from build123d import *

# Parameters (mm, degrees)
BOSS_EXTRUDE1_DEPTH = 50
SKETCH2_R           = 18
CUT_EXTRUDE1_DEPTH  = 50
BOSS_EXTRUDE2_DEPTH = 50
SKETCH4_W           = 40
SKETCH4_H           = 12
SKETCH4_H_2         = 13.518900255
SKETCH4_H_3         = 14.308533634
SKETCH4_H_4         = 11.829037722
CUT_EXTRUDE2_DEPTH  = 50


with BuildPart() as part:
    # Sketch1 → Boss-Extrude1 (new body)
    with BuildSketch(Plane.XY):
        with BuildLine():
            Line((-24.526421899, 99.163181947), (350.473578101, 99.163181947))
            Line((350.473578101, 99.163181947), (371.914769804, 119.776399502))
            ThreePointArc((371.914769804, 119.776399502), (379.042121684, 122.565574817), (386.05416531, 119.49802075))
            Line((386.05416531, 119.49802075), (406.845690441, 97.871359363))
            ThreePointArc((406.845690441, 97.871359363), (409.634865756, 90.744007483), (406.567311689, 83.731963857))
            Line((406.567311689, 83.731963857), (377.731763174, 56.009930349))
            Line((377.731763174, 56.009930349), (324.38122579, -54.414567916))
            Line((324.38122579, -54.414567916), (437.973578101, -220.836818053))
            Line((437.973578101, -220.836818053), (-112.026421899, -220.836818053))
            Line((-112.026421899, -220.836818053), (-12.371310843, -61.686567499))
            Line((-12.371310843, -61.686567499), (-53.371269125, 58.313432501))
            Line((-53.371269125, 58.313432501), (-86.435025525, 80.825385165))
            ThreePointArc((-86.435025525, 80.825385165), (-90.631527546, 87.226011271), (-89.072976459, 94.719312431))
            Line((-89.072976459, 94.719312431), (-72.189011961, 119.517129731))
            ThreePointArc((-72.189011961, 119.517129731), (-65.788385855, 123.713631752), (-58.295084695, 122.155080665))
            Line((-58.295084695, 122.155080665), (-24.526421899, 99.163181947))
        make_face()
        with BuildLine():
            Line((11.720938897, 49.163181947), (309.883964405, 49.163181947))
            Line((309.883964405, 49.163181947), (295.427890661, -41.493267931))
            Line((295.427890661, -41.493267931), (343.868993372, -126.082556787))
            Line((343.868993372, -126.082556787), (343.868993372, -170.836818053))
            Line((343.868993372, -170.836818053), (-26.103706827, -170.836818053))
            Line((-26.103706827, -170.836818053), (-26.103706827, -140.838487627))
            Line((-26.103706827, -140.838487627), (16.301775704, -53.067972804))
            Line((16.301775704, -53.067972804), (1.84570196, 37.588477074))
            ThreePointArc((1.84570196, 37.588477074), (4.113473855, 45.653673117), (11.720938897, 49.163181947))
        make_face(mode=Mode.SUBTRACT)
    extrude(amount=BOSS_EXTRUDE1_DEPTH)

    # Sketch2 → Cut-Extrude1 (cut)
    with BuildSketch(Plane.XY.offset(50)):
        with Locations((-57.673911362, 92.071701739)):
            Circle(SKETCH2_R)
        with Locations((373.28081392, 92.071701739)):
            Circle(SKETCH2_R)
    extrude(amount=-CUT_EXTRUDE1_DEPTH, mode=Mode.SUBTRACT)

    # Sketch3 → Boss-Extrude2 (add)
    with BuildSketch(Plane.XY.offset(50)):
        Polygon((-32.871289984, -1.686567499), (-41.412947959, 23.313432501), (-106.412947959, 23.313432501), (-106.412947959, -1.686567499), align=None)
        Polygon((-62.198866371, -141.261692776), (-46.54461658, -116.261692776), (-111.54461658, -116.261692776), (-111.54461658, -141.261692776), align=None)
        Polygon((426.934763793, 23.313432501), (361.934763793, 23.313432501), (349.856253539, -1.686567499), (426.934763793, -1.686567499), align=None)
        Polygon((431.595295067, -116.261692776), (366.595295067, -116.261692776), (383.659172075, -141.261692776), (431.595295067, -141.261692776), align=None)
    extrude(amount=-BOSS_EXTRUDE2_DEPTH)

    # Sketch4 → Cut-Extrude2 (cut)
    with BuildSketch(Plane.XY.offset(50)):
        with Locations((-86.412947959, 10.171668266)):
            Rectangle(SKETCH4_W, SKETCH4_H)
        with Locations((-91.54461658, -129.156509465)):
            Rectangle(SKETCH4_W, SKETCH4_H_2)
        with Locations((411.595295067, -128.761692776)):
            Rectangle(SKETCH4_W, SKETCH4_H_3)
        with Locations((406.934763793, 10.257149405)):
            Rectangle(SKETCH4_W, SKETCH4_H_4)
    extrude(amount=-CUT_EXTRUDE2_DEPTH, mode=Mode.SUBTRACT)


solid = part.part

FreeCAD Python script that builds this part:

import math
import FreeCAD as App
import Part
import Sketcher
Q = App.Units.Quantity


def add_polygon(sketch, points):
    """Adds a closed chain of lines whose ends are joined by coincident constraints."""
    first, n = sketch.GeometryCount, len(points)
    for a, b in zip(points, points[1:] + points[:1]):
        sketch.addGeometry(Part.LineSegment(App.Vector(*a, 0), App.Vector(*b, 0)), False)
    for i in range(n):
        sketch.addConstraint(Sketcher.Constraint("Coincident", first + i, 2, first + (i + 1) % n, 1))

doc = App.newDocument("Part")
body = doc.addObject("PartDesign::Body", "Body")

# Sketch on XY plane
sketch1 = body.newObject("Sketcher::SketchObject", "Sketch")
sketch1.AttachmentSupport = (doc.getObject("XY_Plane"), [""])
sketch1.MapMode = "FlatFace"
sketch1.addGeometry([
    Part.LineSegment(App.Vector(350.473578, 99.163182, 0), App.Vector(-24.526422, 99.163182, 0)),  # 0
    Part.LineSegment(App.Vector(-24.526422, 99.163182, 0), App.Vector(-58.295085, 122.155081, 0)),  # 1
    Part.ArcOfCircle(Part.Circle(App.Vector(-63.923073, 113.889142, 0), App.Vector(0, 0, 1), 10), math.radians(55.750424), math.radians(145.750424)),  # 2
    Part.LineSegment(App.Vector(-72.189012, 119.51713, 0), App.Vector(-89.072976, 94.719312, 0)),  # 3
    Part.ArcOfCircle(Part.Circle(App.Vector(-80.807037, 89.091324, 0), App.Vector(0, 0, 1), 10), math.radians(145.750424), math.radians(235.750424)),  # 4
    Part.LineSegment(App.Vector(-86.435026, 80.825385, 0), App.Vector(-53.371269, 58.313433, 0)),  # 5
    Part.LineSegment(App.Vector(-53.371269, 58.313433, 0), App.Vector(-12.371311, -61.686567, 0)),  # 6
    Part.LineSegment(App.Vector(-12.371311, -61.686567, 0), App.Vector(-112.026422, -220.836818, 0)),  # 7
    Part.LineSegment(App.Vector(-112.026422, -220.836818, 0), App.Vector(437.973578, -220.836818, 0)),  # 8
    Part.LineSegment(App.Vector(437.973578, -220.836818, 0), App.Vector(324.381226, -54.414568, 0)),  # 9
    Part.LineSegment(App.Vector(324.381226, -54.414568, 0), App.Vector(377.731763, 56.00993, 0)),  # 10
    Part.LineSegment(App.Vector(377.731763, 56.00993, 0), App.Vector(406.567312, 83.731964, 0)),  # 11
    Part.ArcOfCircle(Part.Circle(App.Vector(399.636803, 90.940851, 0), App.Vector(0, 0, 1), 10), math.radians(-46.127903), math.radians(43.872097)),  # 12
    Part.LineSegment(App.Vector(406.84569, 97.871359, 0), App.Vector(386.054165, 119.498021, 0)),  # 13
    Part.ArcOfCircle(Part.Circle(App.Vector(378.845278, 112.567512, 0), App.Vector(0, 0, 1), 10), math.radians(43.872097), math.radians(133.872097)),  # 14
    Part.LineSegment(App.Vector(371.91477, 119.7764, 0), App.Vector(350.473578, 99.163182, 0)),  # 15
    Part.LineSegment(App.Vector(11.720939, 49.163182, 0), App.Vector(309.883964, 49.163182, 0)),  # 16
    Part.LineSegment(App.Vector(309.883964, 49.163182, 0), App.Vector(295.427891, -41.493268, 0)),  # 17
    Part.LineSegment(App.Vector(295.427891, -41.493268, 0), App.Vector(343.868993, -126.082557, 0)),  # 18
    Part.LineSegment(App.Vector(343.868993, -126.082557, 0), App.Vector(343.868993, -170.836818, 0)),  # 19
    Part.LineSegment(App.Vector(343.868993, -170.836818, 0), App.Vector(-26.103707, -170.836818, 0)),  # 20
    Part.LineSegment(App.Vector(-26.103707, -170.836818, 0), App.Vector(-26.103707, -140.838488, 0)),  # 21
    Part.LineSegment(App.Vector(-26.103707, -140.838488, 0), App.Vector(16.301776, -53.067973, 0)),  # 22
    Part.LineSegment(App.Vector(16.301776, -53.067973, 0), App.Vector(1.845702, 37.588477, 0)),  # 23
    Part.ArcOfCircle(Part.Circle(App.Vector(11.720939, 39.163182, 0), App.Vector(0, 0, 1), 10), math.radians(90), math.radians(189.060105)),  # 24
], False)
sketch1.addConstraint([
    Sketcher.Constraint("Coincident", 0, 2, 1, 1),
    Sketcher.Constraint("Tangent", 1, 2, 2, 1),
    Sketcher.Constraint("Tangent", 2, 2, 3, 1),
    Sketcher.Constraint("Tangent", 3, 2, 4, 1),
    Sketcher.Constraint("Tangent", 4, 2, 5, 1),
    Sketcher.Constraint("Coincident", 5, 2, 6, 1),
    Sketcher.Constraint("Coincident", 6, 2, 7, 1),
    Sketcher.Constraint("Coincident", 7, 2, 8, 1),
    Sketcher.Constraint("Coincident", 8, 2, 9, 1),
    Sketcher.Constraint("Coincident", 9, 2, 10, 1),
    Sketcher.Constraint("Coincident", 10, 2, 11, 1),
    Sketcher.Constraint("Tangent", 11, 2, 12, 1),
    Sketcher.Constraint("Tangent", 12, 2, 13, 1),
    Sketcher.Constraint("Tangent", 13, 2, 14, 1),
    Sketcher.Constraint("Tangent", 14, 2, 15, 1),
    Sketcher.Constraint("Coincident", 15, 2, 0, 1),
    Sketcher.Constraint("Coincident", 16, 2, 17, 1),
    Sketcher.Constraint("Coincident", 17, 2, 18, 1),
    Sketcher.Constraint("Coincident", 18, 2, 19, 1),
    Sketcher.Constraint("Coincident", 19, 2, 20, 1),
    Sketcher.Constraint("Coincident", 20, 2, 21, 1),
    Sketcher.Constraint("Coincident", 21, 2, 22, 1),
    Sketcher.Constraint("Coincident", 22, 2, 23, 1),
    Sketcher.Constraint("Tangent", 23, 2, 24, 2),
    Sketcher.Constraint("Tangent", 24, 1, 16, 1),
    Sketcher.Constraint("Horizontal", 0),
    Sketcher.Constraint("Horizontal", 8),
    Sketcher.Constraint("Horizontal", 16),
    Sketcher.Constraint("Vertical", 19),
    Sketcher.Constraint("Horizontal", 20),
    Sketcher.Constraint("Vertical", 21),
    Sketcher.Constraint("Equal", 2, 4),
    Sketcher.Constraint("Equal", 4, 12),
    Sketcher.Constraint("Equal", 12, 14),
    Sketcher.Constraint("Equal", 14, 24),
    Sketcher.Constraint("Perpendicular", 1, 3),
    Sketcher.Constraint("Perpendicular", 3, 5),
    Sketcher.Constraint("Perpendicular", 11, 13),
    Sketcher.Constraint("Perpendicular", 13, 15),
    Sketcher.Constraint("Parallel", 10, 22),
    Sketcher.Constraint("Equal", 5, 11),
    Sketcher.Constraint("Equal", 3, 13),
    Sketcher.Constraint("Equal", 18, 22),
    Sketcher.Constraint("Equal", 17, 23),
    Sketcher.Constraint("Radius", 2, Q("10 mm")),
    Sketcher.Constraint("DistanceX", 0, 2, 0, 1, Q("375 mm")),
    Sketcher.Constraint("DistanceX", 8, 1, 8, 2, Q("550 mm")),
    Sketcher.Constraint("Distance", 3, Q("30 mm")),
    Sketcher.Constraint("Distance", 5, Q("40 mm")),
    Sketcher.Constraint("DistanceY", 24, 3, 0, 2, Q("60 mm")),
    Sketcher.Constraint("DistanceY", 6, 2, 5, 2, Q("120 mm")),
    Sketcher.Constraint("DistanceY", 7, 2, 24, 3, Q("260 mm")),
    Sketcher.Constraint("DistanceY", 8, 2, 19, 2, Q("50 mm")),
    Sketcher.Constraint("DistanceX", 20, 2, 20, 1, Q("369.9727 mm")),
    Sketcher.Constraint("DistanceY", 6, 2, 9, 2, Q("7.272 mm")),
    Sketcher.Constraint("DistanceY", 19, 2, 19, 1, Q("44.754261 mm")),
    Sketcher.Constraint("DistanceY", 21, 1, 21, 2, Q("29.99833 mm")),
    Sketcher.Constraint("DistanceY", -1, 1, 14, 2, Q("119.7764 mm")),
    Sketcher.Constraint("DistanceX", -1, 1, 23, 2, Q("1.845702 mm")),
    Sketcher.Constraint("DistanceX", 0, 2, 14, 3, Q("403.3717 mm")),
    Sketcher.Constraint("DistanceY", 0, 2, 1, 2, Q("22.991899 mm")),
    Sketcher.Constraint("DistanceX", 14, 3, 8, 2, Q("59.1283 mm")),
    Sketcher.Constraint("DistanceY", 9, 2, 10, 2, Q("110.424498 mm")),
    Sketcher.Constraint("DistanceX", 16, 2, 10, 2, Q("67.847799 mm")),
    Sketcher.Constraint("DistanceY", 9, 2, 17, 2, Q("12.9213 mm")),
    Sketcher.Constraint("Distance", 6, Q("126.810869 mm")),
    Sketcher.Constraint("Distance", 15, Q("29.742721 mm")),
    Sketcher.Constraint("Distance", 18, Q("97.477629 mm")),
    Sketcher.Constraint("DistanceX", 16, 1, 16, 2, Q("298.163026 mm")),
    Sketcher.Constraint("DistanceX", -1, 1, 14, 3, Q("378.845278 mm")),
])
pad1 = body.newObject("PartDesign::Pad", "Pad")
pad1.Profile = sketch1
pad1.Length = 50

# Sketch on XY plane
sketch2 = body.newObject("Sketcher::SketchObject", "Sketch001")
sketch2.AttachmentSupport = (doc.getObject("XY_Plane"), [""])
sketch2.MapMode = "FlatFace"
sketch2.AttachmentOffset = App.Placement(App.Vector(0, 0, 50), App.Rotation())
sketch2.addGeometry([
    Part.Circle(App.Vector(-57.673911, 92.071702, 0), App.Vector(0, 0, 1), 18),
    Part.Circle(App.Vector(373.280814, 92.071702, 0), App.Vector(0, 0, 1), 18),
], False)
sketch2.addConstraint([
    Sketcher.Constraint("Equal", 0, 1),
    Sketcher.Constraint("Horizontal", 0, 3, 1, 3),
    Sketcher.Constraint("Diameter", 0, Q("36 mm")),
    Sketcher.Constraint("DistanceY", -1, 1, 0, 3, Q("92.071702 mm")),
    Sketcher.Constraint("DistanceX", 0, 3, -1, 1, Q("57.673911 mm")),
    Sketcher.Constraint("DistanceX", -1, 1, 1, 3, Q("373.280814 mm")),
])
pocket1 = body.newObject("PartDesign::Pocket", "Pocket")
pocket1.Profile = sketch2
pocket1.Length = 50

# Sketch on XY plane
sketch3 = body.newObject("Sketcher::SketchObject", "Sketch002")
sketch3.AttachmentSupport = (doc.getObject("XY_Plane"), [""])
sketch3.MapMode = "FlatFace"
sketch3.AttachmentOffset = App.Placement(App.Vector(0, 0, 50), App.Rotation())
add_polygon(sketch3, [(-32.87129, -1.686567), (-41.412948, 23.313433), (-106.412948, 23.313433), (-106.412948, -1.686567)])  # lines 0-3
add_polygon(sketch3, [(-62.198866, -141.261693), (-46.544617, -116.261693), (-111.544617, -116.261693), (-111.544617, -141.261693)])  # lines 4-7
add_polygon(sketch3, [(426.934764, 23.313433), (361.934764, 23.313433), (349.856254, -1.686567), (426.934764, -1.686567)])  # lines 8-11
add_polygon(sketch3, [(431.595295, -116.261693), (366.595295, -116.261693), (383.659172, -141.261693), (431.595295, -141.261693)])  # lines 12-15
sketch3.addConstraint([
    Sketcher.Constraint("Horizontal", 1),
    Sketcher.Constraint("Vertical", 2),
    Sketcher.Constraint("Horizontal", 3),
    Sketcher.Constraint("Horizontal", 5),
    Sketcher.Constraint("Vertical", 6),
    Sketcher.Constraint("Horizontal", 7),
    Sketcher.Constraint("Horizontal", 8),
    Sketcher.Constraint("Horizontal", 10),
    Sketcher.Constraint("Vertical", 11),
    Sketcher.Constraint("Horizontal", 12),
    Sketcher.Constraint("Horizontal", 14),
    Sketcher.Constraint("Vertical", 15),
    Sketcher.Constraint("Horizontal", 1, 2, 8, 2),
    Sketcher.Constraint("Horizontal", 3, 2, 9, 2),
    Sketcher.Constraint("Horizontal", 5, 2, 12, 2),
    Sketcher.Constraint("Horizontal", 7, 2, 13, 2),
    Sketcher.Constraint("Equal", 1, 5),
    Sketcher.Constraint("Equal", 5, 8),
    Sketcher.Constraint("Equal", 8, 12),
    Sketcher.Constraint("Equal", 2, 6),
    Sketcher.Constraint("DistanceX", 1, 2, 1, 1, Q("65 mm")),
    Sketcher.Constraint("DistanceY", 2, 2, 2, 1, Q("25 mm")),
    Sketcher.Constraint("DistanceX", 7, 1, 7, 2, Q("49.34575 mm")),
    Sketcher.Constraint("DistanceX", 10, 1, 10, 2, Q("77.07851 mm")),
    Sketcher.Constraint("DistanceX", 0, 2, 9, 2, Q("391.269201 mm")),
    Sketcher.Constraint("Distance", 0, Q("26.418931 mm")),
    Sketcher.Constraint("DistanceX", 14, 1, 14, 2, Q("47.936123 mm")),
    Sketcher.Constraint("DistanceX", 3, 2, -1, 1, Q("32.87129 mm")),
    Sketcher.Constraint("DistanceX", 2, 2, 4, 2, Q("59.868331 mm")),
    Sketcher.Constraint("DistanceX", 9, 2, 12, 2, Q("16.739042 mm")),
    Sketcher.Constraint("DistanceY", -1, 1, 0, 2, Q("23.313433 mm")),
    Sketcher.Constraint("DistanceY", 4, 2, -1, 1, Q("116.261693 mm")),
])
pad2 = body.newObject("PartDesign::Pad", "Pad001")
pad2.Profile = sketch3
pad2.Length = 50
pad2.Reversed = True

# Sketch on XY plane
sketch4 = body.newObject("Sketcher::SketchObject", "Sketch003")
sketch4.AttachmentSupport = (doc.getObject("XY_Plane"), [""])
sketch4.MapMode = "FlatFace"
sketch4.AttachmentOffset = App.Placement(App.Vector(0, 0, 50), App.Rotation())
add_polygon(sketch4, [(-106.412948, 16.171668), (-106.412948, 4.171668), (-66.412948, 4.171668), (-66.412948, 16.171668)])  # lines 0-3
add_polygon(sketch4, [(-111.544617, -122.397059), (-111.544617, -135.91596), (-71.544617, -135.91596), (-71.544617, -122.397059)])  # lines 4-7
add_polygon(sketch4, [(391.595295, -121.607426), (391.595295, -135.91596), (431.595295, -135.91596), (431.595295, -121.607426)])  # lines 8-11
add_polygon(sketch4, [(386.934764, 16.171668), (386.934764, 4.342631), (426.934764, 4.342631), (426.934764, 16.171668)])  # lines 12-15
sketch4.addConstraint([
    Sketcher.Constraint("Vertical", 0),
    Sketcher.Constraint("Horizontal", 1),
    Sketcher.Constraint("Vertical", 2),
    Sketcher.Constraint("Horizontal", 3),
    Sketcher.Constraint("Vertical", 4),
    Sketcher.Constraint("Horizontal", 5),
    Sketcher.Constraint("Vertical", 6),
    Sketcher.Constraint("Horizontal", 7),
    Sketcher.Constraint("Vertical", 8),
    Sketcher.Constraint("Horizontal", 9),
    Sketcher.Constraint("Vertical", 10),
    Sketcher.Constraint("Horizontal", 11),
    Sketcher.Constraint("Vertical", 12),
    Sketcher.Constraint("Horizontal", 13),
    Sketcher.Constraint("Vertical", 14),
    Sketcher.Constraint("Horizontal", 15),
    Sketcher.Constraint("Horizontal", 5, 2, 8, 2),
    Sketcher.Constraint("Horizontal", 3, 2, 14, 2),
    Sketcher.Constraint("Equal", 3, 5),
    Sketcher.Constraint("Equal", 7, 9),
    Sketcher.Constraint("Equal", 11, 13),
    Sketcher.Constraint("DistanceX", 1, 1, 1, 2, Q("40 mm")),
    Sketcher.Constraint("DistanceY", 0, 2, 0, 1, Q("12 mm")),
    Sketcher.Constraint("DistanceY", 4, 2, 4, 1, Q("13.5189 mm")),
    Sketcher.Constraint("DistanceY", 8, 2, 8, 1, Q("14.308534 mm")),
    Sketcher.Constraint("DistanceY", 12, 2, 12, 1, Q("11.829038 mm")),
    Sketcher.Constraint("DistanceY", -1, 1, 0, 2, Q("4.171668 mm")),
    Sketcher.Constraint("DistanceY", 4, 2, -1, 1, Q("135.91596 mm")),
    Sketcher.Constraint("DistanceX", 4, 2, 0, 2, Q("5.131669 mm")),
    Sketcher.Constraint("DistanceX", 5, 2, 8, 2, Q("463.139912 mm")),
    Sketcher.Constraint("DistanceX", 12, 2, 11, 2, Q("4.660531 mm")),
    Sketcher.Constraint("DistanceX", 0, 2, -1, 1, Q("106.412948 mm")),
])
pocket2 = body.newObject("PartDesign::Pocket", "Pocket001")
pocket2.Profile = sketch4
pocket2.Length = 50

doc.recompute()
